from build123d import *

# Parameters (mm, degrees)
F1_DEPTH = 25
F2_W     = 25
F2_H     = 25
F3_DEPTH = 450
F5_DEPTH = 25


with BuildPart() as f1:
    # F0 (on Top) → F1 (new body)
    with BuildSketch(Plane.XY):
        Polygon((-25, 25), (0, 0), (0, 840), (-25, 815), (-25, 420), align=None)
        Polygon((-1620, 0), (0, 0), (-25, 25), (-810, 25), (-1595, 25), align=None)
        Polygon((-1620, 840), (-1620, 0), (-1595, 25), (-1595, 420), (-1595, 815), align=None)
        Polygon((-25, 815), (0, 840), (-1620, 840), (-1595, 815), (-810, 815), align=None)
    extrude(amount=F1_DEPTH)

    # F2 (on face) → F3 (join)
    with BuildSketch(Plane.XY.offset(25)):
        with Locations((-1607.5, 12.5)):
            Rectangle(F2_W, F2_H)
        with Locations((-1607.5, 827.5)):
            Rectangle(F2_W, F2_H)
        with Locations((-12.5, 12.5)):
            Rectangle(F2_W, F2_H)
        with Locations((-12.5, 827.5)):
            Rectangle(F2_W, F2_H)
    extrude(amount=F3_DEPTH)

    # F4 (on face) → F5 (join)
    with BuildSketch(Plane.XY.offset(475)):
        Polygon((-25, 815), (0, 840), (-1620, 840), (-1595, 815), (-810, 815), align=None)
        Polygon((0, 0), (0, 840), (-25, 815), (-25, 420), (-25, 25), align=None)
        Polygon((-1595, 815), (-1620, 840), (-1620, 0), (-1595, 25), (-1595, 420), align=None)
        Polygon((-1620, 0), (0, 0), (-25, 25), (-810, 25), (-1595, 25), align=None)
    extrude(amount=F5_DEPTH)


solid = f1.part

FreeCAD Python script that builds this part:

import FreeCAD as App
import Part
import Sketcher
Q = App.Units.Quantity


def add_polygon(sketch, points):
    """Adds a closed chain of lines whose ends are joined by coincident constraints."""
    first, n = sketch.GeometryCount, len(points)
    for a, b in zip(points, points[1:] + points[:1]):
        sketch.addGeometry(Part.LineSegment(App.Vector(*a, 0), App.Vector(*b, 0)), False)
    for i in range(n):
        sketch.addConstraint(Sketcher.Constraint("Coincident", first + i, 2, first + (i + 1) % n, 1))

doc = App.newDocument("Part")
body = doc.addObject("PartDesign::Body", "Body")

# Sketch on XY plane
sketch1 = body.newObject("Sketcher::SketchObject", "Sketch")
sketch1.AttachmentSupport = (doc.getObject("XY_Plane"), [""])
sketch1.MapMode = "FlatFace"
add_polygon(sketch1, [(0, 0), (0, 840), (-1620, 840), (-1620, 0)])  # lines 0-3
add_polygon(sketch1, [(-25, 815), (-25, 25), (-1595, 25), (-1595, 815)])  # lines 4-7
sketch1.addConstraint(Sketcher.Constraint("Vertical", 0))
sketch1.addConstraint(Sketcher.Constraint("Horizontal", 1))
sketch1.addConstraint(Sketcher.Constraint("Vertical", 2))
sketch1.addConstraint(Sketcher.Constraint("Horizontal", 3))
sketch1.addConstraint(Sketcher.Constraint("Vertical", 4))
sketch1.addConstraint(Sketcher.Constraint("Horizontal", 5))
sketch1.addConstraint(Sketcher.Constraint("Vertical", 6))
sketch1.addConstraint(Sketcher.Constraint("Horizontal", 7))
sketch1.addConstraint(Sketcher.Constraint("Coincident", 3, 2, -1, 1))
sketch1.addConstraint(Sketcher.Constraint("DistanceX", 1, 2, 1, 1, Q("1620 mm")))
sketch1.addConstraint(Sketcher.Constraint("DistanceX", 5, 2, 5, 1, Q("1570 mm")))
sketch1.addConstraint(Sketcher.Constraint("DistanceY", 0, 1, 0, 2, Q("840 mm")))
sketch1.addConstraint(Sketcher.Constraint("DistanceY", 4, 2, 4, 1, Q("790 mm")))
sketch1.addConstraint(Sketcher.Constraint("DistanceX", 4, 2, -1, 1, Q("25 mm")))
sketch1.addConstraint(Sketcher.Constraint("DistanceY", -1, 1, 4, 2, Q("25 mm")))
pad1 = body.newObject("PartDesign::Pad", "Pad")
pad1.Profile = sketch1
pad1.Length = 25

# Sketch on XY plane
sketch2 = body.newObject("Sketcher::SketchObject", "Sketch001")
sketch2.AttachmentSupport = (doc.getObject("XY_Plane"), [""])
sketch2.MapMode = "FlatFace"
sketch2.AttachmentOffset = App.Placement(App.Vector(0, 0, 25), App.Rotation())
add_polygon(sketch2, [(-1620, 25), (-1620, 0), (-1595, 0), (-1595, 25)])  # lines 0-3
add_polygon(sketch2, [(-1620, 840), (-1620, 815), (-1595, 815), (-1595, 840)])  # lines 4-7
add_polygon(sketch2, [(-25, 25), (-25, 0), (0, 0), (0, 25)])  # lines 8-11
add_polygon(sketch2, [(-25, 840), (-25, 815), (0, 815), (0, 840)])  # lines 12-15
sketch2.addConstraint(Sketcher.Constraint("Vertical", 0))
sketch2.addConstraint(Sketcher.Constraint("Horizontal", 1))
sketch2.addConstraint(Sketcher.Constraint("Vertical", 2))
sketch2.addConstraint(Sketcher.Constraint("Horizontal", 3))
sketch2.addConstraint(Sketcher.Constraint("Vertical", 4))
sketch2.addConstraint(Sketcher.Constraint("Horizontal", 5))
sketch2.addConstraint(Sketcher.Constraint("Vertical", 6))
sketch2.addConstraint(Sketcher.Constraint("Horizontal", 7))
sketch2.addConstraint(Sketcher.Constraint("Vertical", 8))
sketch2.addConstraint(Sketcher.Constraint("Horizontal", 9))
sketch2.addConstraint(Sketcher.Constraint("Vertical", 10))
sketch2.addConstraint(Sketcher.Constraint("Horizontal", 11))
sketch2.addConstraint(Sketcher.Constraint("Vertical", 12))
sketch2.addConstraint(Sketcher.Constraint("Horizontal", 13))
sketch2.addConstraint(Sketcher.Constraint("Vertical", 14))
sketch2.addConstraint(Sketcher.Constraint("Horizontal", 15))
sketch2.addConstraint(Sketcher.Constraint("Coincident", 9, 2, -1, 1))
sketch2.addConstraint(Sketcher.Constraint("PointOnObject", 0, 2, -1))
sketch2.addConstraint(Sketcher.Constraint("PointOnObject", 13, 2, -2))
sketch2.addConstraint(Sketcher.Constraint("Horizontal", 3, 2, 10, 2))
sketch2.addConstraint(Sketcher.Constraint("Horizontal", 5, 2, 12, 2))
sketch2.addConstraint(Sketcher.Constraint("Horizontal", 7, 2, 14, 2))
sketch2.addConstraint(Sketcher.Constraint("Vertical", 3, 2, 4, 2))
sketch2.addConstraint(Sketcher.Constraint("Vertical", 2, 2, 5, 2))
sketch2.addConstraint(Sketcher.Constraint("Vertical", 11, 2, 12, 2))
sketch2.addConstraint(Sketcher.Constraint("Equal", 7, 9))
sketch2.addConstraint(Sketcher.Constraint("Equal", 15, 0))
sketch2.addConstraint(Sketcher.Constraint("Equal", 2, 4))
sketch2.addConstraint(Sketcher.Constraint("DistanceX", 1, 1, 1, 2, Q("25 mm")))
sketch2.addConstraint(Sketcher.Constraint("DistanceX", 0, 2, -1, 1, Q("1620 mm")))
sketch2.addConstraint(Sketcher.Constraint("DistanceY", -1, 1, 4, 2, Q("815 mm")))
pad2 = body.newObject("PartDesign::Pad", "Pad001")
pad2.Profile = sketch2
pad2.Length = 450

# Sketch on XY plane
sketch3 = body.newObject("Sketcher::SketchObject", "Sketch002")
sketch3.AttachmentSupport = (doc.getObject("XY_Plane"), [""])
sketch3.MapMode = "FlatFace"
sketch3.AttachmentOffset = App.Placement(App.Vector(0, 0, 475), App.Rotation())
add_polygon(sketch3, [(0, 840), (-1620, 840), (-1620, 0), (0, 0)])  # lines 0-3
add_polygon(sketch3, [(-1595, 25), (-1595, 815), (-25, 815), (-25, 25)])  # lines 4-7
sketch3.addConstraint(Sketcher.Constraint("Horizontal", 0))
sketch3.addConstraint(Sketcher.Constraint("Vertical", 1))
sketch3.addConstraint(Sketcher.Constraint("Horizontal", 2))
sketch3.addConstraint(Sketcher.Constraint("Vertical", 3))
sketch3.addConstraint(Sketcher.Constraint("Vertical", 4))
sketch3.addConstraint(Sketcher.Constraint("Horizontal", 5))
sketch3.addConstraint(Sketcher.Constraint("Vertical", 6))
sketch3.addConstraint(Sketcher.Constraint("Horizontal", 7))
sketch3.addConstraint(Sketcher.Constraint("Coincident", 2, 2, -1, 1))
sketch3.addConstraint(Sketcher.Constraint("DistanceX", 0, 2, 0, 1, Q("1620 mm")))
sketch3.addConstraint(Sketcher.Constraint("DistanceX", 5, 1, 5, 2, Q("1570 mm")))
sketch3.addConstraint(Sketcher.Constraint("DistanceY", 1, 2, 1, 1, Q("840 mm")))
sketch3.addConstraint(Sketcher.Constraint("DistanceY", 4, 1, 4, 2, Q("790 mm")))
sketch3.addConstraint(Sketcher.Constraint("DistanceX", 4, 2, -1, 1, Q("1595 mm")))
sketch3.addConstraint(Sketcher.Constraint("DistanceY", -1, 1, 4, 2, Q("815 mm")))
pad3 = body.newObject("PartDesign::Pad", "Pad002")
pad3.Profile = sketch3
pad3.Length = 25

doc.recompute()
